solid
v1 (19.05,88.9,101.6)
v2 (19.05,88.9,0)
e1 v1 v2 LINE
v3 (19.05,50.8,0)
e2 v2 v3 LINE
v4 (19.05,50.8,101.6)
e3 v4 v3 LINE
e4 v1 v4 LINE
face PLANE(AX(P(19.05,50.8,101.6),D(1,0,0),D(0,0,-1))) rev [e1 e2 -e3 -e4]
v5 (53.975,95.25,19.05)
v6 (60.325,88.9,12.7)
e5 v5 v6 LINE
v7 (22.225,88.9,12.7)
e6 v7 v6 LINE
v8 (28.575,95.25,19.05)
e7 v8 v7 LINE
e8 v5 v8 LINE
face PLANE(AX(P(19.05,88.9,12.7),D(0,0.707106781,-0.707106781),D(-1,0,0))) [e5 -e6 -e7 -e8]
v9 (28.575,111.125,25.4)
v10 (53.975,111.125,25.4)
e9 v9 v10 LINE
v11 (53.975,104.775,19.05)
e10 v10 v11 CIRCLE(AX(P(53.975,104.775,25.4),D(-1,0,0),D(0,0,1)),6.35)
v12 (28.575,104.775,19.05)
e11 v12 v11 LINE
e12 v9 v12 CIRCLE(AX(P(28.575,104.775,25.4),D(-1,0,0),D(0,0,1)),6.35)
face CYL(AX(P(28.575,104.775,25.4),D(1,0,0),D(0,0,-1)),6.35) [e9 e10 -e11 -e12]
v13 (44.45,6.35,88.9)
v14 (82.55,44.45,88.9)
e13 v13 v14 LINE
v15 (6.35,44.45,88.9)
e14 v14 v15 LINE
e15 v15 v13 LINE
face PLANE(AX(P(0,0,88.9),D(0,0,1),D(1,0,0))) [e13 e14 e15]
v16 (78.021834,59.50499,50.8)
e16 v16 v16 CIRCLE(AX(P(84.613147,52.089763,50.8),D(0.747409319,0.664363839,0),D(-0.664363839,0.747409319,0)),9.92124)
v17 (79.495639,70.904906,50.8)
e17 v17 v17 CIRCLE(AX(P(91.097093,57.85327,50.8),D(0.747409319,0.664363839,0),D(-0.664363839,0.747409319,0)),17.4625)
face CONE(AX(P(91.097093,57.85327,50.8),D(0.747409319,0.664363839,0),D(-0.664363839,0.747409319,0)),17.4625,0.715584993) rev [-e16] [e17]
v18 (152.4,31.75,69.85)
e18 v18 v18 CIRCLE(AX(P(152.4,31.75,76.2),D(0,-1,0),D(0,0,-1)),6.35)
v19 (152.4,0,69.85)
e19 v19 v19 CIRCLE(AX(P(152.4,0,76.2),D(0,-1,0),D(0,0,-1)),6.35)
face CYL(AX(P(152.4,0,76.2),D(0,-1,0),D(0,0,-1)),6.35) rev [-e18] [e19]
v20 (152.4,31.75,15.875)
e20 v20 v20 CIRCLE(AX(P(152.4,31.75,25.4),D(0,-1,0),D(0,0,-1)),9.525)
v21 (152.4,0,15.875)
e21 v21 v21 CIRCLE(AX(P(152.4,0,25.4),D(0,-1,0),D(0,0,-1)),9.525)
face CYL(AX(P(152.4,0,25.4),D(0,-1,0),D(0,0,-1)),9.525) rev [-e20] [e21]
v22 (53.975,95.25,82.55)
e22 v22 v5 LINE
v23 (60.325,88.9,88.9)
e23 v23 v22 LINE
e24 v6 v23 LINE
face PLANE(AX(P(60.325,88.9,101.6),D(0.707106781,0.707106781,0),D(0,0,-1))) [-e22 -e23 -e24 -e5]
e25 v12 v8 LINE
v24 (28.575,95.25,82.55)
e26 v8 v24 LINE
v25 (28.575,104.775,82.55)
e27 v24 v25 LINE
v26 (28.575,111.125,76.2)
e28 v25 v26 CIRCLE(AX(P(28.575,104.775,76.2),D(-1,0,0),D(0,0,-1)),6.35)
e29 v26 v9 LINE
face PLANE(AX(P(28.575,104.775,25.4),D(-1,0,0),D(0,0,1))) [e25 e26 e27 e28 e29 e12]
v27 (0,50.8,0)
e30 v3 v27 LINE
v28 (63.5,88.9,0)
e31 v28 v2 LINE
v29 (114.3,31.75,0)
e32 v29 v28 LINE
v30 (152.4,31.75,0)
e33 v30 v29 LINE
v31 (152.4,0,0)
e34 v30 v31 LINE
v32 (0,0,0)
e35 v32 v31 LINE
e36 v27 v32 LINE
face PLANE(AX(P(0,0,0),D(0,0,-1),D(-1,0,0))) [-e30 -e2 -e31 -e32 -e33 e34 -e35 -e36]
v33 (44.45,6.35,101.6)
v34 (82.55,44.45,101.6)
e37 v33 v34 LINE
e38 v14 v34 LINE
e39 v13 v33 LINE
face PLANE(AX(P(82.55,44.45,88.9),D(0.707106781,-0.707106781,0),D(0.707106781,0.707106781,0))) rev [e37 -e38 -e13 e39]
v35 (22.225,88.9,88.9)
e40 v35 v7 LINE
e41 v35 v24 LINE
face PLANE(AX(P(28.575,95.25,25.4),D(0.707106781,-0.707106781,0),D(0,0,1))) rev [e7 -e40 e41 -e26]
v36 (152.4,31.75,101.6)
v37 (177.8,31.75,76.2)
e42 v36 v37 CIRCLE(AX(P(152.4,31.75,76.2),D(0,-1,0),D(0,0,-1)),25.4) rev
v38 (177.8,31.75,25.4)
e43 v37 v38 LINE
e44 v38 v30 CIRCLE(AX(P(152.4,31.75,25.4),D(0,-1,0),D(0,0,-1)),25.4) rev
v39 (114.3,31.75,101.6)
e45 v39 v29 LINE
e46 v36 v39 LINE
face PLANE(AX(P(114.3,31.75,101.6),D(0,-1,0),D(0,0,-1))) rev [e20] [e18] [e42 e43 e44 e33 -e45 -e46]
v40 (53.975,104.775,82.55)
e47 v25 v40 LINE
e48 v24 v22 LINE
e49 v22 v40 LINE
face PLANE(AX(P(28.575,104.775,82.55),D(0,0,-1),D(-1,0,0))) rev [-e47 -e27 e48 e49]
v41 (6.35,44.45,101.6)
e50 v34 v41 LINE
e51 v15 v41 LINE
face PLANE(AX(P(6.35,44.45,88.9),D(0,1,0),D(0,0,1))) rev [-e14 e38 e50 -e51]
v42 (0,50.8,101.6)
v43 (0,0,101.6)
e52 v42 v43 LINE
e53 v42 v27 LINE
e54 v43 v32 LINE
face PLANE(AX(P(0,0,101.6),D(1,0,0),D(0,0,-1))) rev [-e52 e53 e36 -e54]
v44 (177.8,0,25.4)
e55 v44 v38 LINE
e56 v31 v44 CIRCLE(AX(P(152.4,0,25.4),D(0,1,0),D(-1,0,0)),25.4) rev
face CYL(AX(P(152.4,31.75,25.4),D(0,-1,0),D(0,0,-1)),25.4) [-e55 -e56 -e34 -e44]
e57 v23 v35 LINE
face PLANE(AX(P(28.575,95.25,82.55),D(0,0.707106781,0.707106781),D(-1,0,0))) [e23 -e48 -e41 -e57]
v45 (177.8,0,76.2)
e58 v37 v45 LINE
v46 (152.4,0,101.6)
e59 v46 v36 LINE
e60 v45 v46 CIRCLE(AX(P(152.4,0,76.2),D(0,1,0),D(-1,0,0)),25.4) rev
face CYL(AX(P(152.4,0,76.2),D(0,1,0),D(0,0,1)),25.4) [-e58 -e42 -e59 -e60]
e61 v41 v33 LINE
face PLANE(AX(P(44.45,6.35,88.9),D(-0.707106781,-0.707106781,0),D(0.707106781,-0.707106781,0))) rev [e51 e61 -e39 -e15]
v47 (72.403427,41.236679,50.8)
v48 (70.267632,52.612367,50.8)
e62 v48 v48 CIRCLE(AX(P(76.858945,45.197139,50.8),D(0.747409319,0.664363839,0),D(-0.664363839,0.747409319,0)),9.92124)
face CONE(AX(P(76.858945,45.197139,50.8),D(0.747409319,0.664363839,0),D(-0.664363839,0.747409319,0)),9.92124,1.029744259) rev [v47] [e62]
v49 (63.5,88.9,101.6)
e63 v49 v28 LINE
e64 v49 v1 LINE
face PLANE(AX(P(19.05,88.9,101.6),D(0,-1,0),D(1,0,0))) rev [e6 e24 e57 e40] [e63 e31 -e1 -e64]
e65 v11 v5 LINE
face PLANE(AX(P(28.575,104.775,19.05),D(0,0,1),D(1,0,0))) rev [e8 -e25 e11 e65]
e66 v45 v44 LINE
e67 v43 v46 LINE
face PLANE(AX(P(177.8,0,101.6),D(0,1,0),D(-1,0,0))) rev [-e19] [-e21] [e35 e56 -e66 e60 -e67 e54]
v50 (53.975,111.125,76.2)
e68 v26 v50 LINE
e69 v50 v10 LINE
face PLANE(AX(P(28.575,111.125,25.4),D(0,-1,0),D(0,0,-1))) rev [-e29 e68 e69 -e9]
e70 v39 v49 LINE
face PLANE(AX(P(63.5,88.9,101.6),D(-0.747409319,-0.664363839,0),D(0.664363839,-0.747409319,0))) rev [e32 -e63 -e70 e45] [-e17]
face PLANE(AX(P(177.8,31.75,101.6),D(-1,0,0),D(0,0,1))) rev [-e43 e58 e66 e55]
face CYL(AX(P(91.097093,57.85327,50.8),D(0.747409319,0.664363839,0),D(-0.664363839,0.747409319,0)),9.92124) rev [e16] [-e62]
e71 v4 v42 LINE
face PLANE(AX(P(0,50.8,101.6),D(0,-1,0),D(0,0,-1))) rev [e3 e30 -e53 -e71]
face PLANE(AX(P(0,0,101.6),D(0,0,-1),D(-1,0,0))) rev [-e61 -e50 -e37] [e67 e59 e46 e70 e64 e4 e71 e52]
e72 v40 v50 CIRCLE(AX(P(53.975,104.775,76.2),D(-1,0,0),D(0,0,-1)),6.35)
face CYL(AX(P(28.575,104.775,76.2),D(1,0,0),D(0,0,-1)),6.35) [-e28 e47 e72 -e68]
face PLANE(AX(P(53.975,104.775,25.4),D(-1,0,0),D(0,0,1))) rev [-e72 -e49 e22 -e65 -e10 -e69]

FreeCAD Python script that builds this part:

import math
import FreeCAD as App
import Part
import Sketcher
Q = App.Units.Quantity


def edges_at(feature, points):
    """Names of the edges that pass closest to the given points."""
    edges = feature.Shape.Edges
    near = lambda p: min(range(len(edges)), key=lambda i: edges[i].distToShape(Part.Vertex(*p))[0])
    return sorted({f"Edge{near(p) + 1}" for p in points})


def add_polygon(sketch, points):
    """Adds a closed chain of lines whose ends are joined by coincident constraints."""
    first, n = sketch.GeometryCount, len(points)
    for a, b in zip(points, points[1:] + points[:1]):
        sketch.addGeometry(Part.LineSegment(App.Vector(*a, 0), App.Vector(*b, 0)), False)
    for i in range(n):
        sketch.addConstraint(Sketcher.Constraint("Coincident", first + i, 2, first + (i + 1) % n, 1))

doc = App.newDocument("Part")
body = doc.addObject("PartDesign::Body", "Body")

# Sketch on XY plane
sketch1 = doc.addObject("Sketcher::SketchObject", "Sketch")
body.addObject(sketch1)
sketch1.AttachmentSupport = (doc.XY_Plane, [""])
sketch1.MapMode = "FlatFace"
add_polygon(sketch1, [(0, 51), (0, 0), (178, 0), (178, 32), (114, 32), (64, 89), (19, 89), (19, 51)])  # lines 0-7
sketch1.addConstraint(Sketcher.Constraint("Vertical", 0))
sketch1.addConstraint(Sketcher.Constraint("Horizontal", 1))
sketch1.addConstraint(Sketcher.Constraint("Vertical", 2))
sketch1.addConstraint(Sketcher.Constraint("Horizontal", 3))
sketch1.addConstraint(Sketcher.Constraint("Horizontal", 5))
sketch1.addConstraint(Sketcher.Constraint("Vertical", 6))
sketch1.addConstraint(Sketcher.Constraint("Horizontal", 7))
sketch1.addConstraint(Sketcher.Constraint("Coincident", 0, 2, -1, 1))
sketch1.addConstraint(Sketcher.Constraint("DistanceX", 1, 1, 1, 2, Q("7 in")))
sketch1.addConstraint(Sketcher.Constraint("DistanceY", 0, 2, 0, 1, Q("2 in")))
sketch1.addConstraint(Sketcher.Constraint("DistanceX", 3, 2, 3, 1, Q("2.5 in")))
sketch1.addConstraint(Sketcher.Constraint("DistanceY", 6, 2, 6, 1, Q("1.5 in")))
sketch1.addConstraint(Sketcher.Constraint("DistanceX", 4, 2, 3, 2, Q("2 in")))
sketch1.addConstraint(Sketcher.Constraint("DistanceX", 5, 2, 5, 1, Q("1.75 in")))
sketch1.addConstraint(Sketcher.Constraint("DistanceY", 2, 1, 2, 2, Q("1.25 in")))
pad1 = doc.addObject("PartDesign::Pad", "Pad")
body.addObject(pad1)
pad1.Profile = sketch1
pad1.Length = Q("4 in")

# Sketch on YZ plane
sketch2 = doc.addObject("Sketcher::SketchObject", "Sketch001")
body.addObject(sketch2)
sketch2.AttachmentSupport = (doc.YZ_Plane, [""])
sketch2.MapMode = "FlatFace"
sketch2.AttachmentOffset = App.Placement(App.Vector(0, 0, 1.625 * 25.4), App.Rotation())
sketch2.addGeometry(Part.LineSegment(App.Vector(111, 76, 0), App.Vector(111, 25, 0)), False)
sketch2.addGeometry(Part.ArcOfCircle(Part.Circle(App.Vector(105, 25, 0), App.Vector(0, 0, 1), 6), math.radians(-90), math.radians(0)), False)
sketch2.addGeometry(Part.LineSegment(App.Vector(105, 19, 0), App.Vector(89, 19, 0)), False)
sketch2.addGeometry(Part.LineSegment(App.Vector(89, 19, 0), App.Vector(89, 83, 0)), False)
sketch2.addGeometry(Part.LineSegment(App.Vector(89, 83, 0), App.Vector(105, 83, 0)), False)
sketch2.addGeometry(Part.ArcOfCircle(Part.Circle(App.Vector(105, 76, 0), App.Vector(0, 0, 1), 6), math.radians(0), math.radians(90)), False)
sketch2.addConstraint(Sketcher.Constraint("Tangent", 0, 2, 1, 2))
sketch2.addConstraint(Sketcher.Constraint("Tangent", 1, 1, 2, 1))
sketch2.addConstraint(Sketcher.Constraint("Coincident", 2, 2, 3, 1))
sketch2.addConstraint(Sketcher.Constraint("Coincident", 3, 2, 4, 1))
sketch2.addConstraint(Sketcher.Constraint("Tangent", 4, 2, 5, 2))
sketch2.addConstraint(Sketcher.Constraint("Tangent", 5, 1, 0, 1))
sketch2.addConstraint(Sketcher.Constraint("Vertical", 0))
sketch2.addConstraint(Sketcher.Constraint("Horizontal", 2))
sketch2.addConstraint(Sketcher.Constraint("Vertical", 3))
sketch2.addConstraint(Sketcher.Constraint("Horizontal", 4))
sketch2.addConstraint(Sketcher.Constraint("Equal", 1, 5))
sketch2.addConstraint(Sketcher.Constraint("DistanceY", 0, 2, 0, 1, Q("2 in")))
sketch2.addConstraint(Sketcher.Constraint("Radius", 1, Q("0.25 in")))
sketch2.addConstraint(Sketcher.Constraint("DistanceY", -1, 1, 1, 3, Q("1 in")))
sketch2.addConstraint(Sketcher.Constraint("DistanceX", -1, 1, 2, 2, Q("3.5 in")))
sketch2.addConstraint(Sketcher.Constraint("DistanceX", 2, 2, 2, 1, Q("0.625 in")))
pad2 = doc.addObject("PartDesign::Pad", "Pad001")
body.addObject(pad2)
pad2.Profile = sketch2
pad2.Length = Q("1 in")
pad2.Midplane = True
doc.recompute()

chamfer = doc.addObject("PartDesign::Chamfer", "Chamfer")
body.addObject(chamfer)
chamfer.Base = (pad2, edges_at(pad2, [
    (53.975, 88.9, 50.8),
    (41.275, 88.9, 19.05),
    (41.275, 88.9, 82.55),
    (28.575, 88.9, 50.8),
]))
chamfer.Size = Q("0.25 in")
doc.recompute()

fillet = doc.addObject("PartDesign::Fillet", "Fillet")
body.addObject(fillet)
fillet.Base = (chamfer, edges_at(chamfer, [(177.8, 15.875, 0), (177.8, 15.875, 101.6)]))
fillet.Radius = Q("1 in")

# Sketch on XY plane
sketch3 = doc.addObject("Sketcher::SketchObject", "Sketch002")
body.addObject(sketch3)
sketch3.AttachmentSupport = (doc.XY_Plane, [""])
sketch3.MapMode = "FlatFace"
sketch3.AttachmentOffset = App.Placement(App.Vector(0, 0, 4 * 25.4), App.Rotation())
add_polygon(sketch3, [(83, 44), (6, 44), (44, 6)])  # lines 0-2
sketch3.addConstraint(Sketcher.Constraint("Horizontal", 0))
sketch3.addConstraint(Sketcher.Constraint("Perpendicular", 1, 2))
sketch3.addConstraint(Sketcher.Constraint("Equal", 1, 2))
sketch3.addConstraint(Sketcher.Constraint("DistanceX", 0, 2, 0, 1, Q("3 in")))
sketch3.addConstraint(Sketcher.Constraint("DistanceX", -1, 1, 0, 2, Q("0.25 in")))
sketch3.addConstraint(Sketcher.Constraint("DistanceY", -1, 1, 0, 2, Q("1.75 in")))
pocket1 = doc.addObject("PartDesign::Pocket", "Pocket")
body.addObject(pocket1)
pocket1.Profile = sketch3
pocket1.Length = Q("0.5 in")

# Sketch on an angled plane
sketch4 = doc.addObject("Sketcher::SketchObject", "Sketch003")
body.addObject(sketch4)
sketch4.Placement = App.Placement(App.Vector(79.615862, 70.769655, 0), App.Rotation(App.Vector(0, 0, -1), App.Vector(-0.664363839, 0.747409319, 0), App.Vector(0.747409319, 0.664363839, 0), "ZXY"))
sketch4.addGeometry(Part.Circle(App.Vector(-51, -17, 0), App.Vector(0, 0, 1), 10), False)
sketch4.addConstraint(Sketcher.Constraint("DistanceX", 0, 3, -1, 1, Q("2 in")))
sketch4.addConstraint(Sketcher.Constraint("Diameter", 0, Q("0.7812 in")))
sketch4.addConstraint(Sketcher.Constraint("DistanceY", 0, 3, -1, 1, Q("17.281541 mm")))
doc.recompute()
hole = doc.addObject("PartDesign::Hole", "Hole")
body.addObject(hole)
hole.Profile = sketch4
hole.ThreadType = "None"
hole.Diameter = Q("0.7812 in")
hole.DepthType = "Dimension"
hole.Depth = Q("0.75 in")
hole.DrillPoint = "Angled"
hole.DrillPointAngle = 118
hole.HoleCutType = "Countersink"
hole.HoleCutDiameter = Q("1.375 in")
hole.HoleCutCountersinkAngle = 82

# Sketch on XZ plane
sketch5 = doc.addObject("Sketcher::SketchObject", "Sketch004")
body.addObject(sketch5)
sketch5.AttachmentSupport = (doc.XZ_Plane, [""])
sketch5.MapMode = "FlatFace"
sketch5.addGeometry(Part.Circle(App.Vector(152, 25, 0), App.Vector(0, 0, 1), 10), False)
sketch5.addConstraint(Sketcher.Constraint("Diameter", 0, Q("0.75 in")))
sketch5.addConstraint(Sketcher.Constraint("DistanceX", -1, 1, 0, 3, Q("6 in")))
sketch5.addConstraint(Sketcher.Constraint("DistanceY", -1, 1, 0, 3, Q("1 in")))
doc.recompute()
hole2 = doc.addObject("PartDesign::Hole", "Hole001")
body.addObject(hole2)
hole2.Profile = sketch5
hole2.ThreadType = "None"
hole2.Diameter = Q("0.75 in")
hole2.DepthType = "ThroughAll"

# Sketch on XZ plane
sketch6 = doc.addObject("Sketcher::SketchObject", "Sketch005")
body.addObject(sketch6)
sketch6.AttachmentSupport = (doc.XZ_Plane, [""])
sketch6.MapMode = "FlatFace"
sketch6.addGeometry(Part.Circle(App.Vector(152, 76, 0), App.Vector(0, 0, 1), 6), False)
sketch6.addConstraint(Sketcher.Constraint("Diameter", 0, Q("0.5 in")))
sketch6.addConstraint(Sketcher.Constraint("DistanceX", -1, 1, 0, 3, Q("6 in")))
sketch6.addConstraint(Sketcher.Constraint("DistanceY", -1, 1, 0, 3, Q("3 in")))
doc.recompute()
hole3 = doc.addObject("PartDesign::Hole", "Hole002")
body.addObject(hole3)
hole3.Profile = sketch6
hole3.ThreadType = "None"
hole3.Diameter = Q("0.5 in")
hole3.DepthType = "ThroughAll"

doc.recompute()
